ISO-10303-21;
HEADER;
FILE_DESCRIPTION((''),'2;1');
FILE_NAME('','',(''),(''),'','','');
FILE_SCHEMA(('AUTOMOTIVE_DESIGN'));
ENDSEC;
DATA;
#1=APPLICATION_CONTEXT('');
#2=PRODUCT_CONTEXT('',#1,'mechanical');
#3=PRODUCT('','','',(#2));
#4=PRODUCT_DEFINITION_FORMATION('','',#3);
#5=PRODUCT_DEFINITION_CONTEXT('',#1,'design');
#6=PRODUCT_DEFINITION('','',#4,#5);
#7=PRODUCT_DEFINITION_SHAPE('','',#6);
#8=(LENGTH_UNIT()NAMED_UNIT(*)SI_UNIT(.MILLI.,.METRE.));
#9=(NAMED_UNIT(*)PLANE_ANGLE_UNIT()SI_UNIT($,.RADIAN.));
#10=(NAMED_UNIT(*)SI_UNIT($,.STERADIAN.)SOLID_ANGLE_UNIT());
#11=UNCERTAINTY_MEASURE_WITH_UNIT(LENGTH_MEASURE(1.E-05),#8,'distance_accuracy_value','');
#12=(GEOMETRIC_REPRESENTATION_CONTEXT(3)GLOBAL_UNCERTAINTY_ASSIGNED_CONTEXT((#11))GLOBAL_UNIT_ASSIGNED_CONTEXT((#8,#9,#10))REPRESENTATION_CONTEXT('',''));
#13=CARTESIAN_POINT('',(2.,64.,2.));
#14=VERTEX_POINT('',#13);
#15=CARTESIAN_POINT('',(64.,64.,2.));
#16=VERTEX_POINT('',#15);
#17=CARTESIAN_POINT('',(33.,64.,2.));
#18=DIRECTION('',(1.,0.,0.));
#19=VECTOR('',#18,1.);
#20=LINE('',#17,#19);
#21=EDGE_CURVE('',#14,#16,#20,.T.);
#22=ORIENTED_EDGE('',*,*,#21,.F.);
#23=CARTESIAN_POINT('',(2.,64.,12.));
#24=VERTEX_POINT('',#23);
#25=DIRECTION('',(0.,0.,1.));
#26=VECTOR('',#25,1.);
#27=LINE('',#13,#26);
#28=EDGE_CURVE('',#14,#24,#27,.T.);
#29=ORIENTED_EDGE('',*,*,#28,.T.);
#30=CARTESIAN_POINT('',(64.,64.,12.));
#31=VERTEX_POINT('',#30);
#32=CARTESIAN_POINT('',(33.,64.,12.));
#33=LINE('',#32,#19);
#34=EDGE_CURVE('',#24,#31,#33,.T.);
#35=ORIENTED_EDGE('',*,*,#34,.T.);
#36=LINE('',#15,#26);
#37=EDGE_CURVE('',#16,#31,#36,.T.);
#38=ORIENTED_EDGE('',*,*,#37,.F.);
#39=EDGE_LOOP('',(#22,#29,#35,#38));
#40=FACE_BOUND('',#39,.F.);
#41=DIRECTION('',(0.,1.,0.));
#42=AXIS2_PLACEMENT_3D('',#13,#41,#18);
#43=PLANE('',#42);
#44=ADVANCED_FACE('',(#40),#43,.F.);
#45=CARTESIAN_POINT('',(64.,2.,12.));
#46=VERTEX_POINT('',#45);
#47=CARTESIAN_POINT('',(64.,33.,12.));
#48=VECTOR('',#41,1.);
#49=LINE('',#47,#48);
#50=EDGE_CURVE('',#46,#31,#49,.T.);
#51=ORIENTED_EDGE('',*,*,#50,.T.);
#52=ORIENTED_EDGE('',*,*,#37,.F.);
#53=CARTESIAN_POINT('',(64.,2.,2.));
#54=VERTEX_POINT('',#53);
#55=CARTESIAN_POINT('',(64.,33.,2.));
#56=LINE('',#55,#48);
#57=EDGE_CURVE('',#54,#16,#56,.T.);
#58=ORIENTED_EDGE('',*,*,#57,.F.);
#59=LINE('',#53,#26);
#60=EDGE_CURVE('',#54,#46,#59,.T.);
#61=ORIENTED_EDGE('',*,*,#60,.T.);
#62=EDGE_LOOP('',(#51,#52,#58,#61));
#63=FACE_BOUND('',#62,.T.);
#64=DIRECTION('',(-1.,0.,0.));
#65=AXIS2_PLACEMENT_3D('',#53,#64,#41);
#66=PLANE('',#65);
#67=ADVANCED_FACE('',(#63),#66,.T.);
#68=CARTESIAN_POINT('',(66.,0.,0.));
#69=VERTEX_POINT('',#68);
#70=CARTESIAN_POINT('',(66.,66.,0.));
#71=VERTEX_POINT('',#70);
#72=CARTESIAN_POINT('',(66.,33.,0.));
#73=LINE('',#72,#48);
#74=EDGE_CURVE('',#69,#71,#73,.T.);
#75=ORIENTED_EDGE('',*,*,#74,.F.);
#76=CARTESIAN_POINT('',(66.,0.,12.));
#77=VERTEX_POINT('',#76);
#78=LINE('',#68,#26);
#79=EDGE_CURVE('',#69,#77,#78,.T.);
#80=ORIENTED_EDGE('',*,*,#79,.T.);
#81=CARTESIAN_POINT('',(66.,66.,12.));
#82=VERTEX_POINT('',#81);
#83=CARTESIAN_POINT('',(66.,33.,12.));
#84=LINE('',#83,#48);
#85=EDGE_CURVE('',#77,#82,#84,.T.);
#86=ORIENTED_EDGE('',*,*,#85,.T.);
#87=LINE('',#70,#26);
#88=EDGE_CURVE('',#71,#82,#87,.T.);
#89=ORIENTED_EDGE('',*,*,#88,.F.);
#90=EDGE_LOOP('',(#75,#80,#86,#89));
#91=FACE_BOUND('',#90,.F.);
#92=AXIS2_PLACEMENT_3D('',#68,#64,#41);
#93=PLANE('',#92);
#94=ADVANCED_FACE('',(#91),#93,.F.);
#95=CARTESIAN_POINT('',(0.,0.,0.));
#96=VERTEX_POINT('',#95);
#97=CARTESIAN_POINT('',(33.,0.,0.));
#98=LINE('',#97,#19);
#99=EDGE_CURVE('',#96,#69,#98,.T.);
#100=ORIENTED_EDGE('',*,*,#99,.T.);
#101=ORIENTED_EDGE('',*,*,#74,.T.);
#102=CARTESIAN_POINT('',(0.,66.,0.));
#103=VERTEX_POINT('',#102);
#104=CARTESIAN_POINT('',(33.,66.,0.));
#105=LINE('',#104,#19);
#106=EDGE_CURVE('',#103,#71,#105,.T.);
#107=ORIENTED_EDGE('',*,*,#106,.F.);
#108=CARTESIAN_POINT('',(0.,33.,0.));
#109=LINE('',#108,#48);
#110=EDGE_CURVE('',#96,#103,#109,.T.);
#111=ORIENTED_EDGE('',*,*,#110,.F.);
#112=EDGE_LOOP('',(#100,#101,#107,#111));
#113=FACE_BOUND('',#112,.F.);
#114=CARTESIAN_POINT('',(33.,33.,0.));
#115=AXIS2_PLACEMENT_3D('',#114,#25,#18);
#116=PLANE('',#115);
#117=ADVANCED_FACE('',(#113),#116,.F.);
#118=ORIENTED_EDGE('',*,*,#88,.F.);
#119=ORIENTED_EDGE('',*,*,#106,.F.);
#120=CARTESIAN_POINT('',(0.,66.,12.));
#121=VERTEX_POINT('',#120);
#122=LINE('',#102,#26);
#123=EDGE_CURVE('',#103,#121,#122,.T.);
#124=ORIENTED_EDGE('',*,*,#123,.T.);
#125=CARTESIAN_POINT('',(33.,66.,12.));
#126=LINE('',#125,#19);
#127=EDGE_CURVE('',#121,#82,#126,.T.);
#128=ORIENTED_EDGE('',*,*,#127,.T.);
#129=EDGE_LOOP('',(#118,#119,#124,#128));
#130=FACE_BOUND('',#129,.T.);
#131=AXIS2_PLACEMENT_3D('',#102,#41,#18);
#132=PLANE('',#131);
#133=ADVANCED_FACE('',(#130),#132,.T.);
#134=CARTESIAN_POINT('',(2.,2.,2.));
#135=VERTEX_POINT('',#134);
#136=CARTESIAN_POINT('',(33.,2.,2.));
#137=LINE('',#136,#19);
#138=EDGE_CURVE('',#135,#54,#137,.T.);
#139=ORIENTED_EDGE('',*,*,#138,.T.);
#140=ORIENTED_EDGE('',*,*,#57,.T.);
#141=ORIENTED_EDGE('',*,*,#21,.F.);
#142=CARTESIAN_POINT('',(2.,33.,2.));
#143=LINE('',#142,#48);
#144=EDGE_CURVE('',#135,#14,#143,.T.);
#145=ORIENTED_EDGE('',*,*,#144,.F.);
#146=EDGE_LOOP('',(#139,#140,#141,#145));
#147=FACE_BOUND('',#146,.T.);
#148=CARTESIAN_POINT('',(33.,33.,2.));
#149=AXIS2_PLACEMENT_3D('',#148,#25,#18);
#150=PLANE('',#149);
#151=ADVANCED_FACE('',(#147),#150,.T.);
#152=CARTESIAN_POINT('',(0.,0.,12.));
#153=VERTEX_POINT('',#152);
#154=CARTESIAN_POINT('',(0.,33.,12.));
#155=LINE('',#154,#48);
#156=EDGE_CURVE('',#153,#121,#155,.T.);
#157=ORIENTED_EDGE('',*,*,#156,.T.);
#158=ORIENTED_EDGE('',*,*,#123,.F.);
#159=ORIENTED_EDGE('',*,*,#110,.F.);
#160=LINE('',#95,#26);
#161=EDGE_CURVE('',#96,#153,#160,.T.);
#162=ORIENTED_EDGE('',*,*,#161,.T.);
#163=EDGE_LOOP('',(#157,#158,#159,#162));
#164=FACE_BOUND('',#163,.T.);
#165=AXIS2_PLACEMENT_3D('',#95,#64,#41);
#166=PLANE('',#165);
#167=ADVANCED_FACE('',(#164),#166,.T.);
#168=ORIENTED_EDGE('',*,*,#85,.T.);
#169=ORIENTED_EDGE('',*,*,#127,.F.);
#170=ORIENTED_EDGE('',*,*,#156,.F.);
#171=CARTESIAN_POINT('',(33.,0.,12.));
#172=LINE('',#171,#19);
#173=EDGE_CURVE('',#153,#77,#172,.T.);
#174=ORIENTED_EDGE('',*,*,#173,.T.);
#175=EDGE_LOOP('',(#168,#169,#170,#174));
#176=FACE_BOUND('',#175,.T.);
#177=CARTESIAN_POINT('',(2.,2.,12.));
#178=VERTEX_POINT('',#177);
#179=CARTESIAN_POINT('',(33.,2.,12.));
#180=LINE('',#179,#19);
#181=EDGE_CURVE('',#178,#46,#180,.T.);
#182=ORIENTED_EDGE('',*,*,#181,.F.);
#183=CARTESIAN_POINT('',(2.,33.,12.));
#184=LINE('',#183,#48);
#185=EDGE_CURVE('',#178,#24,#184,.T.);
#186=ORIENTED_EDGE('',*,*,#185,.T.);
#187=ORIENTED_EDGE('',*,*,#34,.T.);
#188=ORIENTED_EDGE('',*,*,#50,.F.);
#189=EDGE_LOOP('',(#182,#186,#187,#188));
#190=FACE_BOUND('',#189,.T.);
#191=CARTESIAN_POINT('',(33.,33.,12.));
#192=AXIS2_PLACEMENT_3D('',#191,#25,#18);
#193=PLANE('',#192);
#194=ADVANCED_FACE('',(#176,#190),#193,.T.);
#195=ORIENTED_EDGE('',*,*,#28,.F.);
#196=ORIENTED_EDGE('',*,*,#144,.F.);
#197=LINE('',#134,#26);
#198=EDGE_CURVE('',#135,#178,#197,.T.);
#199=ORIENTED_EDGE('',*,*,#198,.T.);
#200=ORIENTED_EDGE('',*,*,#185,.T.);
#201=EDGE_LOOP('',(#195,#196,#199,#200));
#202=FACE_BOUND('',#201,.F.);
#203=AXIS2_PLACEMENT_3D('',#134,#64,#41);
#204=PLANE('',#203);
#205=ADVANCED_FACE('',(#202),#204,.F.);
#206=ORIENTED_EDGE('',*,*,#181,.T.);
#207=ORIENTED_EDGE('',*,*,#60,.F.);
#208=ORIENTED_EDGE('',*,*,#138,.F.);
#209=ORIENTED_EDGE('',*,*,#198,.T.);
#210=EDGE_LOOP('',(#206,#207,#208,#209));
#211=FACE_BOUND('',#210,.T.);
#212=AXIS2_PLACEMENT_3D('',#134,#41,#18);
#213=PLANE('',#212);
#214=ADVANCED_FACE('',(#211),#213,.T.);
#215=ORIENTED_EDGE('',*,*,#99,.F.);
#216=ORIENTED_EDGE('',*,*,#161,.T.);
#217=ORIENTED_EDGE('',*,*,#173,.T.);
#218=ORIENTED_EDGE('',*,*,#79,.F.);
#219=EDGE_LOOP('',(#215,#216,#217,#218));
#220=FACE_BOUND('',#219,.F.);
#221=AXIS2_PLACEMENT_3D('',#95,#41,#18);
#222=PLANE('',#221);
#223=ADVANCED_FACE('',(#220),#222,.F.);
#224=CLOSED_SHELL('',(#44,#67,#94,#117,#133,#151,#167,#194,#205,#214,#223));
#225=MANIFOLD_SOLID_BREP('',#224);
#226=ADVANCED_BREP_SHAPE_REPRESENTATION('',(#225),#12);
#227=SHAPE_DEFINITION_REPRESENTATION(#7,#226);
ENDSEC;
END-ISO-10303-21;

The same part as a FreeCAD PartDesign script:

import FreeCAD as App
import Part
import Sketcher
from FreeCAD import Vector
Q = App.Units.Quantity

doc = App.newDocument("Part")
body = doc.addObject("PartDesign::Body", "Body")

sketch1 = body.newObject("Sketcher::SketchObject", "Sketch")
sketch1.AttachmentSupport = (doc.getObject("XY_Plane"), [""])
sketch1.MapMode = "FlatFace"
sketch1.AttachmentOffset = App.Placement(Vector(0, 0, 2), App.Rotation())
sketch1.addGeometry([
    Part.LineSegment(Vector(2, 64, 0), Vector(2, 2, 0)),
    Part.LineSegment(Vector(2, 2, 0), Vector(64, 2, 0)),
    Part.LineSegment(Vector(64, 2, 0), Vector(64, 64, 0)),
    Part.LineSegment(Vector(64, 64, 0), Vector(2, 64, 0)),
], False)
sketch1.addConstraint([
    Sketcher.Constraint("Coincident", 0, 2, 1, 1),
    Sketcher.Constraint("Coincident", 1, 2, 2, 1),
    Sketcher.Constraint("Coincident", 2, 2, 3, 1),
    Sketcher.Constraint("Coincident", 3, 2, 0, 1),
    Sketcher.Constraint("Vertical", 0),
    Sketcher.Constraint("Horizontal", 1),
    Sketcher.Constraint("Vertical", 2),
    Sketcher.Constraint("Horizontal", 3),
    Sketcher.Constraint("Equal", 3, 0),
    Sketcher.Constraint("DistanceX", 1, 1, 1, 2, Q("62 mm")),
    Sketcher.Constraint("DistanceX", -1, 1, 0, 2, Q("2 mm")),
    Sketcher.Constraint("DistanceY", -1, 1, 0, 2, Q("2 mm")),
])
pad1 = body.newObject("PartDesign::Pad", "Pad")
pad1.Profile = sketch1
pad1.Length = 10
body2 = doc.addObject("PartDesign::Body", "Body001")

sketch2 = body2.newObject("Sketcher::SketchObject", "Sketch001")
sketch2.AttachmentSupport = (doc.getObject("XY_Plane001"), [""])
sketch2.MapMode = "FlatFace"
sketch2.addGeometry([
    Part.LineSegment(Vector(0, 66, 0), Vector(0, 0, 0)),
    Part.LineSegment(Vector(0, 0, 0), Vector(66, 0, 0)),
    Part.LineSegment(Vector(66, 0, 0), Vector(66, 66, 0)),
    Part.LineSegment(Vector(66, 66, 0), Vector(0, 66, 0)),
], False)
sketch2.addConstraint([
    Sketcher.Constraint("Coincident", 0, 2, 1, 1),
    Sketcher.Constraint("Coincident", 1, 2, 2, 1),
    Sketcher.Constraint("Coincident", 2, 2, 3, 1),
    Sketcher.Constraint("Coincident", 3, 2, 0, 1),
    Sketcher.Constraint("Vertical", 0),
    Sketcher.Constraint("Horizontal", 1),
    Sketcher.Constraint("Vertical", 2),
    Sketcher.Constraint("Horizontal", 3),
    Sketcher.Constraint("Coincident", 0, 2, -1, 1),
    Sketcher.Constraint("Equal", 3, 0),
    Sketcher.Constraint("DistanceX", 1, 1, 1, 2, Q("66 mm")),
])
pad2 = body2.newObject("PartDesign::Pad", "Pad001")
pad2.Profile = sketch2
pad2.Length = 12
doc.recompute()

boolean = body2.newObject("PartDesign::Boolean", "Boolean")
boolean.Type = "Cut"
boolean.addObjects([body])

doc.recompute()
